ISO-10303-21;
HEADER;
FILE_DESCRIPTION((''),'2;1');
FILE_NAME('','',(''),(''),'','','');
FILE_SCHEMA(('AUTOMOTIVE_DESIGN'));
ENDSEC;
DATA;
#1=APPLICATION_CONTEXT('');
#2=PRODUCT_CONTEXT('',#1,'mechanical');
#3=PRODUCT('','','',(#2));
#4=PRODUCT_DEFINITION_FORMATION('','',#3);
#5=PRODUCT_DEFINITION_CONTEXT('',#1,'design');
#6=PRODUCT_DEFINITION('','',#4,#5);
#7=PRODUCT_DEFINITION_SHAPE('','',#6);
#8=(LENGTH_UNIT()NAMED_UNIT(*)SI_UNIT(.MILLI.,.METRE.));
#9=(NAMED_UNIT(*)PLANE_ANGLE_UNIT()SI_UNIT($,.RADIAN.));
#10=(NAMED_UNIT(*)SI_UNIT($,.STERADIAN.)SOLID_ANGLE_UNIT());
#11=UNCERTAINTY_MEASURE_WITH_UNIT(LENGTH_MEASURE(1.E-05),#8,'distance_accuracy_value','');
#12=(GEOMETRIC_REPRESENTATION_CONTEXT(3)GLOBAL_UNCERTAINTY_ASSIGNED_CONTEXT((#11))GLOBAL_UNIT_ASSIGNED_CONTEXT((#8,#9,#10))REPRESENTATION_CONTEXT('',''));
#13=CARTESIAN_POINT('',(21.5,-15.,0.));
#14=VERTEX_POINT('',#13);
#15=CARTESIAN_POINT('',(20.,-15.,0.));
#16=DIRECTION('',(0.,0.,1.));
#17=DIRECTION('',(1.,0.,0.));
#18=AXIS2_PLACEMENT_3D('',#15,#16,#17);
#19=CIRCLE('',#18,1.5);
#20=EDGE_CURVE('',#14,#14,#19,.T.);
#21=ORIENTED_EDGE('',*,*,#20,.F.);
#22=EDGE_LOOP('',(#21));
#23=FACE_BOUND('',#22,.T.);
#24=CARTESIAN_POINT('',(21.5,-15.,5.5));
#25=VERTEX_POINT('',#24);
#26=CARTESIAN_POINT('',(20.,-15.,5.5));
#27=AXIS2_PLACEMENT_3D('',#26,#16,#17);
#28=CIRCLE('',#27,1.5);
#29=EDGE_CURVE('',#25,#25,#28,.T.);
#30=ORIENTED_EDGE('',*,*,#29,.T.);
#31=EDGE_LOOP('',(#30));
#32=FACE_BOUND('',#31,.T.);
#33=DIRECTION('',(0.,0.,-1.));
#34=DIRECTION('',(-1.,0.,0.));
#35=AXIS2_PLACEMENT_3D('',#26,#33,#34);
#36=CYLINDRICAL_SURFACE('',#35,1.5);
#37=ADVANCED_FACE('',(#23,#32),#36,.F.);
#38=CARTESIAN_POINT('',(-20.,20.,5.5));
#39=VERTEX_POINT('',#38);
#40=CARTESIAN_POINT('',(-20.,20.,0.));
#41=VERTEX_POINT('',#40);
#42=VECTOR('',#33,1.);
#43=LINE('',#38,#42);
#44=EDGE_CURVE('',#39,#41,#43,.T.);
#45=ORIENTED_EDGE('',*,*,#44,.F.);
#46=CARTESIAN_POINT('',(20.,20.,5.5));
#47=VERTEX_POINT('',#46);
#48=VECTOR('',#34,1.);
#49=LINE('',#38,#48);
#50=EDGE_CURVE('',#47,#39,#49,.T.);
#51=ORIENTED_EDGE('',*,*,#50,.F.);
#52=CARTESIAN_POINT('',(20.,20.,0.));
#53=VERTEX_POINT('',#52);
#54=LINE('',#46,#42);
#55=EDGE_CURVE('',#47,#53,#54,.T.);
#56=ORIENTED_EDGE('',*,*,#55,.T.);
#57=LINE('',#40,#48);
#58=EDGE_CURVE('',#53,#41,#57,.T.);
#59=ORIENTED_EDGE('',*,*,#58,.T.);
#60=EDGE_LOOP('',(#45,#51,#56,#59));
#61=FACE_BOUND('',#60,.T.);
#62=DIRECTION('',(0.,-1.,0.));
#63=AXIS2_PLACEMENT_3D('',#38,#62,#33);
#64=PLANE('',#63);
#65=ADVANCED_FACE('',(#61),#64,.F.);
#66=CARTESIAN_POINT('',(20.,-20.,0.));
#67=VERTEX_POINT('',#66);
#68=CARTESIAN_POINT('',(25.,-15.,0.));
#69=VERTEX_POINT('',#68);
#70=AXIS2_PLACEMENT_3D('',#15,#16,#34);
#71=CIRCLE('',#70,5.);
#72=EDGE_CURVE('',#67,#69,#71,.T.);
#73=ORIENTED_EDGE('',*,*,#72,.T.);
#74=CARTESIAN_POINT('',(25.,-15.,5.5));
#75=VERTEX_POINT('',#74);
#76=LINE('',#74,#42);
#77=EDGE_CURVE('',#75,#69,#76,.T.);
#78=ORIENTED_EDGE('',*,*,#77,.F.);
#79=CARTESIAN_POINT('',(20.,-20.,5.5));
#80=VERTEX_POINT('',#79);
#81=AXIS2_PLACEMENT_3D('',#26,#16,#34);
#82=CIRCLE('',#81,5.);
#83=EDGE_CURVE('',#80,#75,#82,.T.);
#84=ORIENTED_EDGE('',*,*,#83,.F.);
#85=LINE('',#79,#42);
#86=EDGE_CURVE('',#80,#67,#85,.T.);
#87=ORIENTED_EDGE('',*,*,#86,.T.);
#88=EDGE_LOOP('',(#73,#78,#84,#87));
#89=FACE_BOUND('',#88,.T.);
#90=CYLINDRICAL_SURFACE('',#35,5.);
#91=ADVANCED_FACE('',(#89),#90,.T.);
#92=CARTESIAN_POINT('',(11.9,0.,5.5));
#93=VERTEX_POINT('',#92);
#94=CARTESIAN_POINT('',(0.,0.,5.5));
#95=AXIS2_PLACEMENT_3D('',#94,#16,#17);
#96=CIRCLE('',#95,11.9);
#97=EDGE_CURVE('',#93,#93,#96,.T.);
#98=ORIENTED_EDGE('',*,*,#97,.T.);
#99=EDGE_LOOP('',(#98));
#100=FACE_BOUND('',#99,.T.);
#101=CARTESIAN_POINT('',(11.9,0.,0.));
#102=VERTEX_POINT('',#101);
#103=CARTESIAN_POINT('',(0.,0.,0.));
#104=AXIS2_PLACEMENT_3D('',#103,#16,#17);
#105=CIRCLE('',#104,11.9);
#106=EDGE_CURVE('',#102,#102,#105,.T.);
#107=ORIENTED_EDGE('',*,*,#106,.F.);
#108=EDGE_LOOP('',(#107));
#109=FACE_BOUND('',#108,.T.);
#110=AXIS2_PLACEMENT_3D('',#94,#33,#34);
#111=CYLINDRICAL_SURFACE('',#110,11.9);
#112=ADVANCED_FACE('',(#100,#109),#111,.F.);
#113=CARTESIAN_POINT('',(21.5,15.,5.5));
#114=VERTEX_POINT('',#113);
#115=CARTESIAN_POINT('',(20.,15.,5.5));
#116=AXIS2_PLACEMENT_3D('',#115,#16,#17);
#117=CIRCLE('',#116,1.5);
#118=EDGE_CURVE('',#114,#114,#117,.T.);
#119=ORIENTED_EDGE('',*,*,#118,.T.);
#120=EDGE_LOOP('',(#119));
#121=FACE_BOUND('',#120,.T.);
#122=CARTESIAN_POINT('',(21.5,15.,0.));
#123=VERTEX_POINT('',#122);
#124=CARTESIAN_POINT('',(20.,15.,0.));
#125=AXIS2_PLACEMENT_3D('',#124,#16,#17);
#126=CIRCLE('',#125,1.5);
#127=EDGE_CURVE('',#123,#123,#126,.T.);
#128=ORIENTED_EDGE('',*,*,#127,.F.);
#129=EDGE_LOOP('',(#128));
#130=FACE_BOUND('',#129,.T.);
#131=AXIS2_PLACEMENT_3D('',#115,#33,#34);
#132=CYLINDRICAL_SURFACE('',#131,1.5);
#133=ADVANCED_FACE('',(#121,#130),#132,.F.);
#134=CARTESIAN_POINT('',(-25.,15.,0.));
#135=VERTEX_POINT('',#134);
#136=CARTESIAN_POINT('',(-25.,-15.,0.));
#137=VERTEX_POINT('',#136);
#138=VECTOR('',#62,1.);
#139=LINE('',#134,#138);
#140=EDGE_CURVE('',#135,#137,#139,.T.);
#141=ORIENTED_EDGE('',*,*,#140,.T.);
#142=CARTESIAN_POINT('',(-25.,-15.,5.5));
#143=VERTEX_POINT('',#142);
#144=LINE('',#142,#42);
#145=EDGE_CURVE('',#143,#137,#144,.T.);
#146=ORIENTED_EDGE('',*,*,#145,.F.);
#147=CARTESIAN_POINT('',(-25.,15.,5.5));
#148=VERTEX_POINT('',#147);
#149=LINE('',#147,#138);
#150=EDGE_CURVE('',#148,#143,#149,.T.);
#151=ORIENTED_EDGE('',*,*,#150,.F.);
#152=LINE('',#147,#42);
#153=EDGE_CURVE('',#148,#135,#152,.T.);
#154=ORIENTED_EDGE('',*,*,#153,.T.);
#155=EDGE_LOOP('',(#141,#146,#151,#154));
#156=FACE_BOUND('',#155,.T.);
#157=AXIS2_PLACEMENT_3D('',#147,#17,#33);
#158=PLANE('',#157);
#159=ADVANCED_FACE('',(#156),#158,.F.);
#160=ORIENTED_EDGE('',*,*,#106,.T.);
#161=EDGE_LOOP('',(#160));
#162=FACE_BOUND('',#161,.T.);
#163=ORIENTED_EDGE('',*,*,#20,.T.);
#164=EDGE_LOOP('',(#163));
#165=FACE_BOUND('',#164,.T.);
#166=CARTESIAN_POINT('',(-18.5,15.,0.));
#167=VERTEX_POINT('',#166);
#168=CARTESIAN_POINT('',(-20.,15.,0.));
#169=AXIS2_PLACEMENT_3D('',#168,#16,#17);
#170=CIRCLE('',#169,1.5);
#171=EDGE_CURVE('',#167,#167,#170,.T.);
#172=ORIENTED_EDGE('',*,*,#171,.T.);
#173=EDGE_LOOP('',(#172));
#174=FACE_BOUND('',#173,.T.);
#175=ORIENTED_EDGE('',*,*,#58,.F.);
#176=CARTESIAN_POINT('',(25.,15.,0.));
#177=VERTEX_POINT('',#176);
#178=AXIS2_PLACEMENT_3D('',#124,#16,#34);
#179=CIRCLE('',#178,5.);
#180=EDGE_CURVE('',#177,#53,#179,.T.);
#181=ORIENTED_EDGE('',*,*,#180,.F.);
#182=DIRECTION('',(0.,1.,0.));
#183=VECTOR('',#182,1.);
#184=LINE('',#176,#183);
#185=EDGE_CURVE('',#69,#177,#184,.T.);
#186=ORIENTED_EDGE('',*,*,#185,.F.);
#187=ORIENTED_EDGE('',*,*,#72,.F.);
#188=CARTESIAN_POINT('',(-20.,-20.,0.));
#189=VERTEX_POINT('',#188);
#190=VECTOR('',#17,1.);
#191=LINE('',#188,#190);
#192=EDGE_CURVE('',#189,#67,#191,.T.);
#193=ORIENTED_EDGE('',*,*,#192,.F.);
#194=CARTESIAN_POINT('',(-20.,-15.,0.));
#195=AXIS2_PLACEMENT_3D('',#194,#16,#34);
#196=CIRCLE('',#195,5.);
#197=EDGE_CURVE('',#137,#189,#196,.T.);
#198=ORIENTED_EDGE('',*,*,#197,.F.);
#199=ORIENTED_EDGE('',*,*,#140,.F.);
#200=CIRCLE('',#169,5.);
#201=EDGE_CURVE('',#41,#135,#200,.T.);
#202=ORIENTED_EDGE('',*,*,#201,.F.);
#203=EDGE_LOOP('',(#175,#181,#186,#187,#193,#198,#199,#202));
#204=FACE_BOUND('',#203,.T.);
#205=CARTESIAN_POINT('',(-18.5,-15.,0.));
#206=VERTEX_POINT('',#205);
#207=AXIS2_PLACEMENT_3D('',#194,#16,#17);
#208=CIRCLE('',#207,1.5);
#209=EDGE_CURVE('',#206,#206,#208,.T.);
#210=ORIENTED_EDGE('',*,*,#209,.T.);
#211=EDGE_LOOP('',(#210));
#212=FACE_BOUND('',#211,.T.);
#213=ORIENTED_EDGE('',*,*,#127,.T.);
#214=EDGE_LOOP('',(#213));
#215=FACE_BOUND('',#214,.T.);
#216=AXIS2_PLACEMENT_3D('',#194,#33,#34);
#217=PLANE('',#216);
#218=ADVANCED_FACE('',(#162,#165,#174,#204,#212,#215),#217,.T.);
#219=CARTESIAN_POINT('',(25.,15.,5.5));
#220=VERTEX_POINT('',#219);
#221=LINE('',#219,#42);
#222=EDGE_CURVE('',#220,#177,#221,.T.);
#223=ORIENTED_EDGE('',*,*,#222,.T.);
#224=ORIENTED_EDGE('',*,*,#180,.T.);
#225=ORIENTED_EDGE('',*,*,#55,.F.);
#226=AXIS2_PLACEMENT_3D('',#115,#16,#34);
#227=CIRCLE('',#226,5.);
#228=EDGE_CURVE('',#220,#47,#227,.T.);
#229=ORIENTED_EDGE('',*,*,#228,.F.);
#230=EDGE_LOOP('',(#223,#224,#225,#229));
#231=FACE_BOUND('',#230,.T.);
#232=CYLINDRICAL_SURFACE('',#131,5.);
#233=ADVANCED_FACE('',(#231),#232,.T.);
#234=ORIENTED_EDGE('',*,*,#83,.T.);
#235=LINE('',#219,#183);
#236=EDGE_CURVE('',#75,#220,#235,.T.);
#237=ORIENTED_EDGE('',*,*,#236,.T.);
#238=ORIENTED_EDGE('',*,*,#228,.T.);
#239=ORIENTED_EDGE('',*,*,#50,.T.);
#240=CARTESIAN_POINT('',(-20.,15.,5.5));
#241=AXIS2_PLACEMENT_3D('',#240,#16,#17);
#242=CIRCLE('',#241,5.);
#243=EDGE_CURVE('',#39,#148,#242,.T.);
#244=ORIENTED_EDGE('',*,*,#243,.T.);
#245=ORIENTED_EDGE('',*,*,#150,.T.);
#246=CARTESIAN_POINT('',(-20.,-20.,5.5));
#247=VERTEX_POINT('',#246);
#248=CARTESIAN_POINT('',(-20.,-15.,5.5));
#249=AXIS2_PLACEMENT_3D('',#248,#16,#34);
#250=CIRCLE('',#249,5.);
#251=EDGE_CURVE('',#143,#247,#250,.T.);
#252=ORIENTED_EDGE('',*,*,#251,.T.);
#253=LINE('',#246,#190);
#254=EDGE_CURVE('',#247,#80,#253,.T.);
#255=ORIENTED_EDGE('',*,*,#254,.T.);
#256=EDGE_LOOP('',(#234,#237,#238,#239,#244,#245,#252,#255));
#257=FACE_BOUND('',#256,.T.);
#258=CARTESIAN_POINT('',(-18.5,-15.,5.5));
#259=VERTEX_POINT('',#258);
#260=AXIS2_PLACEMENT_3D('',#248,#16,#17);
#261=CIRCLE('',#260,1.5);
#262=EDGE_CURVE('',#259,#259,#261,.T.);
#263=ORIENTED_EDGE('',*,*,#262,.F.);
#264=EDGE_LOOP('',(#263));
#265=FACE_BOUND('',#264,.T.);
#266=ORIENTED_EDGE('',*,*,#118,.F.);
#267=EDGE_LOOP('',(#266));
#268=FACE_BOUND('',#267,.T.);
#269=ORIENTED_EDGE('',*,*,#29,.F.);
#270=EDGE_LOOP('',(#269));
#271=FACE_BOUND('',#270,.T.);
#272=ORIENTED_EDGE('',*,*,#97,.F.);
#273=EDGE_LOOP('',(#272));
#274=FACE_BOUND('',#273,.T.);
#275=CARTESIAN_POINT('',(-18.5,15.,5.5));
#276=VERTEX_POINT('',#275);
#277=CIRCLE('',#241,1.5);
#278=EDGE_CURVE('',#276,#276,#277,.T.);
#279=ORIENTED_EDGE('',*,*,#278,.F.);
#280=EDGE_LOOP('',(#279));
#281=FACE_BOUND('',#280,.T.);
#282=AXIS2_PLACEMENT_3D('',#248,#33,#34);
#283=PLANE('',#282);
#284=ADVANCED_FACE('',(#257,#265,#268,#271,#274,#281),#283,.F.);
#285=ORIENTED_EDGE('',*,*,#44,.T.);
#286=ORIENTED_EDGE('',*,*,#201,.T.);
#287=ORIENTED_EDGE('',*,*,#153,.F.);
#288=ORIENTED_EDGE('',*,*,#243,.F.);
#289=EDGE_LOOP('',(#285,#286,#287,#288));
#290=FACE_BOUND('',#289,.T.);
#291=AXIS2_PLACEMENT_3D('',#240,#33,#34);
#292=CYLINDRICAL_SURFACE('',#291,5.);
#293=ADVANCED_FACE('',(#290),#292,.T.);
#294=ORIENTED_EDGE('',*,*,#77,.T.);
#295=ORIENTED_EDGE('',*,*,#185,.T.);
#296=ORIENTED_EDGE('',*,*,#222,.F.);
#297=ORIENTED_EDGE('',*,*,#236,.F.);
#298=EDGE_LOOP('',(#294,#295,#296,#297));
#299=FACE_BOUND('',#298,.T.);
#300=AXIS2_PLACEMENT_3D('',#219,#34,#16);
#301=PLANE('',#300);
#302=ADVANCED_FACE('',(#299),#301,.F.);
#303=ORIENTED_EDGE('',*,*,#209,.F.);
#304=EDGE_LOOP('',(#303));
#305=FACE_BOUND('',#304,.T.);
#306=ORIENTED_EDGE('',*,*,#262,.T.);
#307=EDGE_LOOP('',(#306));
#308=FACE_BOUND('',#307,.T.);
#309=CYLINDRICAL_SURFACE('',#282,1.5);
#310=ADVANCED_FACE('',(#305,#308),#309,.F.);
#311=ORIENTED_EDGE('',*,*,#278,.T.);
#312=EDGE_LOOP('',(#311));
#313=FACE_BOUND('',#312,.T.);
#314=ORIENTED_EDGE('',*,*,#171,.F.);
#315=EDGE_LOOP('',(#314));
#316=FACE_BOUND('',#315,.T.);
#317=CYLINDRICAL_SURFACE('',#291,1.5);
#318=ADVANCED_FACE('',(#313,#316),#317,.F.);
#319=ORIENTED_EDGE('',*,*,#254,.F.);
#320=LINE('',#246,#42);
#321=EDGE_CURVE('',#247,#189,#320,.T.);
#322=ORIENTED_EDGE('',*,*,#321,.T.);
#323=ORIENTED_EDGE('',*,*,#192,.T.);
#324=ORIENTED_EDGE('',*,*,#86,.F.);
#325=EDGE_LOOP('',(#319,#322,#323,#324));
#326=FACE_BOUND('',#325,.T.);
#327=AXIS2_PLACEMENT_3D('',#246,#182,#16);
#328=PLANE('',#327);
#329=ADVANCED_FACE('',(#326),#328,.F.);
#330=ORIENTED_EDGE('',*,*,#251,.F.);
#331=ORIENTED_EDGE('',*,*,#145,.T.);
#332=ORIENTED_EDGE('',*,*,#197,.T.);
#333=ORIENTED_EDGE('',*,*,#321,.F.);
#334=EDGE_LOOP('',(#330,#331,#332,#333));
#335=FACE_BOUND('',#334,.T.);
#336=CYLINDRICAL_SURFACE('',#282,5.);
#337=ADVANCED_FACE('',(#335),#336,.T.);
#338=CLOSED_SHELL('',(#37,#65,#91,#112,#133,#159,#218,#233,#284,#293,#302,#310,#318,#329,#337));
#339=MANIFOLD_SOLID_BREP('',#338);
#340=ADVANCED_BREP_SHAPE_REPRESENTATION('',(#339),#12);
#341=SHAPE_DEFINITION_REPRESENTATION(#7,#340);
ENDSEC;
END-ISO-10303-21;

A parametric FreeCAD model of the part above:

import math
import FreeCAD as App
import Part
import Sketcher
from FreeCAD import Vector
Q = App.Units.Quantity

doc = App.newDocument("Part")
body = doc.addObject("PartDesign::Body", "Body")

sketch1 = body.newObject("Sketcher::SketchObject", "Sketch")
sketch1.AttachmentSupport = (doc.getObject("XY_Plane"), [""])
sketch1.MapMode = "FlatFace"
sketch1.addGeometry([
    Part.LineSegment(Vector(20, 20, 0), Vector(-20, 20, 0)),
    Part.ArcOfCircle(Part.Circle(Vector(-20, 15, 0), Vector(0, 0, 1), 5), math.radians(90), math.radians(180)),
    Part.LineSegment(Vector(-25, 15, 0), Vector(-25, -15, 0)),
    Part.ArcOfCircle(Part.Circle(Vector(-20, -15, 0), Vector(0, 0, 1), 5), math.radians(180), math.radians(270)),
    Part.LineSegment(Vector(-20, -20, 0), Vector(20, -20, 0)),
    Part.ArcOfCircle(Part.Circle(Vector(20, -15, 0), Vector(0, 0, 1), 5), math.radians(-90), math.radians(0)),
    Part.LineSegment(Vector(25, -15, 0), Vector(25, 15, 0)),
    Part.ArcOfCircle(Part.Circle(Vector(20, 15, 0), Vector(0, 0, 1), 5), math.radians(0), math.radians(90)),
    Part.Circle(Vector(20, -15, 0), Vector(0, 0, 1), 1.5),
    Part.Circle(Vector(-20, -15, 0), Vector(0, 0, 1), 1.5),
    Part.Circle(Vector(20, 15, 0), Vector(0, 0, 1), 1.5),
    Part.Circle(Vector(0, 0, 0), Vector(0, 0, 1), 11.9),
    Part.Circle(Vector(-20, 15, 0), Vector(0, 0, 1), 1.5),
], False)
sketch1.addConstraint([
    Sketcher.Constraint("Tangent", 0, 2, 1, 1),
    Sketcher.Constraint("Tangent", 1, 2, 2, 1),
    Sketcher.Constraint("Tangent", 2, 2, 3, 1),
    Sketcher.Constraint("Tangent", 3, 2, 4, 1),
    Sketcher.Constraint("Tangent", 4, 2, 5, 1),
    Sketcher.Constraint("Tangent", 5, 2, 6, 1),
    Sketcher.Constraint("Tangent", 6, 2, 7, 1),
    Sketcher.Constraint("Tangent", 7, 2, 0, 1),
    Sketcher.Constraint("Horizontal", 0),
    Sketcher.Constraint("Vertical", 2),
    Sketcher.Constraint("Horizontal", 4),
    Sketcher.Constraint("Vertical", 6),
    Sketcher.Constraint("Coincident", 11, 3, -1, 1),
    Sketcher.Constraint("Coincident", 8, 3, 5, 3),
    Sketcher.Constraint("Coincident", 9, 3, 3, 3),
    Sketcher.Constraint("Coincident", 10, 3, 7, 3),
    Sketcher.Constraint("Coincident", 12, 3, 1, 3),
    Sketcher.Constraint("Equal", 1, 3),
    Sketcher.Constraint("Equal", 3, 5),
    Sketcher.Constraint("Equal", 5, 7),
    Sketcher.Constraint("Equal", 8, 9),
    Sketcher.Constraint("Equal", 9, 10),
    Sketcher.Constraint("Equal", 10, 12),
    Sketcher.Constraint("Symmetric", 1, 3, 5, 3, -1, 1),
    Sketcher.Constraint("Diameter", 8, Q("3 mm")),
    Sketcher.Constraint("Radius", 1, Q("5 mm")),
    Sketcher.Constraint("Diameter", 11, Q("23.8 mm")),
    Sketcher.Constraint("DistanceX", 0, 2, 0, 1, Q("40 mm")),
    Sketcher.Constraint("DistanceY", 2, 2, 2, 1, Q("30 mm")),
])
pad1 = body.newObject("PartDesign::Pad", "Pad")
pad1.Profile = sketch1
pad1.Length = 5.5

doc.recompute()
